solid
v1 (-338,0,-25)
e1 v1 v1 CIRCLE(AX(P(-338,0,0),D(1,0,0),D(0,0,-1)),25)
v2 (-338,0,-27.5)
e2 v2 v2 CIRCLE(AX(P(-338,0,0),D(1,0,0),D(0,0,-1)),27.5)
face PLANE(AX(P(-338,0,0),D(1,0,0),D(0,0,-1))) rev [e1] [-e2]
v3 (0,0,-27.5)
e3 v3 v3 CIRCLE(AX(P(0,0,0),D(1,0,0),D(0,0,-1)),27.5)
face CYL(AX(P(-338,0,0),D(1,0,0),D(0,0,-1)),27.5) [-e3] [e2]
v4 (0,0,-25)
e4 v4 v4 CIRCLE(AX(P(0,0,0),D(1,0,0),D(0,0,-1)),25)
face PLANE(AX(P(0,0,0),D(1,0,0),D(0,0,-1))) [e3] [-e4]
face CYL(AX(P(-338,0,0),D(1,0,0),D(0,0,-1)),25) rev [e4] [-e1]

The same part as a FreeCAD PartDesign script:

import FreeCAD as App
import Part
import Sketcher
from FreeCAD import Vector

doc = App.newDocument("Part")
body = doc.addObject("PartDesign::Body", "Body")

# Sketch on YZ plane
sketch1 = body.newObject("Sketcher::SketchObject", "Sketch")
sketch1.AttachmentSupport = (doc.getObject("YZ_Plane"), [""])
sketch1.MapMode = "FlatFace"
sketch1.addGeometry([
    Part.Circle(Vector(0, 0, 0), Vector(0, 0, 1), 28),
    Part.Circle(Vector(0, 0, 0), Vector(0, 0, 1), 25),
], False)
sketch1.addConstraint([
    Sketcher.Constraint("Coincident", 0, 3, -1, 1),
    Sketcher.Constraint("Coincident", 1, 3, -1, 1),
    Sketcher.Constraint("Diameter", 0, 55.0),
    Sketcher.Constraint("Diameter", 1, 50.0),
])
pad1 = body.newObject("PartDesign::Pad", "Pad")
pad1.Profile = sketch1
pad1.Length = 338
pad1.Reversed = True

doc.recompute()
